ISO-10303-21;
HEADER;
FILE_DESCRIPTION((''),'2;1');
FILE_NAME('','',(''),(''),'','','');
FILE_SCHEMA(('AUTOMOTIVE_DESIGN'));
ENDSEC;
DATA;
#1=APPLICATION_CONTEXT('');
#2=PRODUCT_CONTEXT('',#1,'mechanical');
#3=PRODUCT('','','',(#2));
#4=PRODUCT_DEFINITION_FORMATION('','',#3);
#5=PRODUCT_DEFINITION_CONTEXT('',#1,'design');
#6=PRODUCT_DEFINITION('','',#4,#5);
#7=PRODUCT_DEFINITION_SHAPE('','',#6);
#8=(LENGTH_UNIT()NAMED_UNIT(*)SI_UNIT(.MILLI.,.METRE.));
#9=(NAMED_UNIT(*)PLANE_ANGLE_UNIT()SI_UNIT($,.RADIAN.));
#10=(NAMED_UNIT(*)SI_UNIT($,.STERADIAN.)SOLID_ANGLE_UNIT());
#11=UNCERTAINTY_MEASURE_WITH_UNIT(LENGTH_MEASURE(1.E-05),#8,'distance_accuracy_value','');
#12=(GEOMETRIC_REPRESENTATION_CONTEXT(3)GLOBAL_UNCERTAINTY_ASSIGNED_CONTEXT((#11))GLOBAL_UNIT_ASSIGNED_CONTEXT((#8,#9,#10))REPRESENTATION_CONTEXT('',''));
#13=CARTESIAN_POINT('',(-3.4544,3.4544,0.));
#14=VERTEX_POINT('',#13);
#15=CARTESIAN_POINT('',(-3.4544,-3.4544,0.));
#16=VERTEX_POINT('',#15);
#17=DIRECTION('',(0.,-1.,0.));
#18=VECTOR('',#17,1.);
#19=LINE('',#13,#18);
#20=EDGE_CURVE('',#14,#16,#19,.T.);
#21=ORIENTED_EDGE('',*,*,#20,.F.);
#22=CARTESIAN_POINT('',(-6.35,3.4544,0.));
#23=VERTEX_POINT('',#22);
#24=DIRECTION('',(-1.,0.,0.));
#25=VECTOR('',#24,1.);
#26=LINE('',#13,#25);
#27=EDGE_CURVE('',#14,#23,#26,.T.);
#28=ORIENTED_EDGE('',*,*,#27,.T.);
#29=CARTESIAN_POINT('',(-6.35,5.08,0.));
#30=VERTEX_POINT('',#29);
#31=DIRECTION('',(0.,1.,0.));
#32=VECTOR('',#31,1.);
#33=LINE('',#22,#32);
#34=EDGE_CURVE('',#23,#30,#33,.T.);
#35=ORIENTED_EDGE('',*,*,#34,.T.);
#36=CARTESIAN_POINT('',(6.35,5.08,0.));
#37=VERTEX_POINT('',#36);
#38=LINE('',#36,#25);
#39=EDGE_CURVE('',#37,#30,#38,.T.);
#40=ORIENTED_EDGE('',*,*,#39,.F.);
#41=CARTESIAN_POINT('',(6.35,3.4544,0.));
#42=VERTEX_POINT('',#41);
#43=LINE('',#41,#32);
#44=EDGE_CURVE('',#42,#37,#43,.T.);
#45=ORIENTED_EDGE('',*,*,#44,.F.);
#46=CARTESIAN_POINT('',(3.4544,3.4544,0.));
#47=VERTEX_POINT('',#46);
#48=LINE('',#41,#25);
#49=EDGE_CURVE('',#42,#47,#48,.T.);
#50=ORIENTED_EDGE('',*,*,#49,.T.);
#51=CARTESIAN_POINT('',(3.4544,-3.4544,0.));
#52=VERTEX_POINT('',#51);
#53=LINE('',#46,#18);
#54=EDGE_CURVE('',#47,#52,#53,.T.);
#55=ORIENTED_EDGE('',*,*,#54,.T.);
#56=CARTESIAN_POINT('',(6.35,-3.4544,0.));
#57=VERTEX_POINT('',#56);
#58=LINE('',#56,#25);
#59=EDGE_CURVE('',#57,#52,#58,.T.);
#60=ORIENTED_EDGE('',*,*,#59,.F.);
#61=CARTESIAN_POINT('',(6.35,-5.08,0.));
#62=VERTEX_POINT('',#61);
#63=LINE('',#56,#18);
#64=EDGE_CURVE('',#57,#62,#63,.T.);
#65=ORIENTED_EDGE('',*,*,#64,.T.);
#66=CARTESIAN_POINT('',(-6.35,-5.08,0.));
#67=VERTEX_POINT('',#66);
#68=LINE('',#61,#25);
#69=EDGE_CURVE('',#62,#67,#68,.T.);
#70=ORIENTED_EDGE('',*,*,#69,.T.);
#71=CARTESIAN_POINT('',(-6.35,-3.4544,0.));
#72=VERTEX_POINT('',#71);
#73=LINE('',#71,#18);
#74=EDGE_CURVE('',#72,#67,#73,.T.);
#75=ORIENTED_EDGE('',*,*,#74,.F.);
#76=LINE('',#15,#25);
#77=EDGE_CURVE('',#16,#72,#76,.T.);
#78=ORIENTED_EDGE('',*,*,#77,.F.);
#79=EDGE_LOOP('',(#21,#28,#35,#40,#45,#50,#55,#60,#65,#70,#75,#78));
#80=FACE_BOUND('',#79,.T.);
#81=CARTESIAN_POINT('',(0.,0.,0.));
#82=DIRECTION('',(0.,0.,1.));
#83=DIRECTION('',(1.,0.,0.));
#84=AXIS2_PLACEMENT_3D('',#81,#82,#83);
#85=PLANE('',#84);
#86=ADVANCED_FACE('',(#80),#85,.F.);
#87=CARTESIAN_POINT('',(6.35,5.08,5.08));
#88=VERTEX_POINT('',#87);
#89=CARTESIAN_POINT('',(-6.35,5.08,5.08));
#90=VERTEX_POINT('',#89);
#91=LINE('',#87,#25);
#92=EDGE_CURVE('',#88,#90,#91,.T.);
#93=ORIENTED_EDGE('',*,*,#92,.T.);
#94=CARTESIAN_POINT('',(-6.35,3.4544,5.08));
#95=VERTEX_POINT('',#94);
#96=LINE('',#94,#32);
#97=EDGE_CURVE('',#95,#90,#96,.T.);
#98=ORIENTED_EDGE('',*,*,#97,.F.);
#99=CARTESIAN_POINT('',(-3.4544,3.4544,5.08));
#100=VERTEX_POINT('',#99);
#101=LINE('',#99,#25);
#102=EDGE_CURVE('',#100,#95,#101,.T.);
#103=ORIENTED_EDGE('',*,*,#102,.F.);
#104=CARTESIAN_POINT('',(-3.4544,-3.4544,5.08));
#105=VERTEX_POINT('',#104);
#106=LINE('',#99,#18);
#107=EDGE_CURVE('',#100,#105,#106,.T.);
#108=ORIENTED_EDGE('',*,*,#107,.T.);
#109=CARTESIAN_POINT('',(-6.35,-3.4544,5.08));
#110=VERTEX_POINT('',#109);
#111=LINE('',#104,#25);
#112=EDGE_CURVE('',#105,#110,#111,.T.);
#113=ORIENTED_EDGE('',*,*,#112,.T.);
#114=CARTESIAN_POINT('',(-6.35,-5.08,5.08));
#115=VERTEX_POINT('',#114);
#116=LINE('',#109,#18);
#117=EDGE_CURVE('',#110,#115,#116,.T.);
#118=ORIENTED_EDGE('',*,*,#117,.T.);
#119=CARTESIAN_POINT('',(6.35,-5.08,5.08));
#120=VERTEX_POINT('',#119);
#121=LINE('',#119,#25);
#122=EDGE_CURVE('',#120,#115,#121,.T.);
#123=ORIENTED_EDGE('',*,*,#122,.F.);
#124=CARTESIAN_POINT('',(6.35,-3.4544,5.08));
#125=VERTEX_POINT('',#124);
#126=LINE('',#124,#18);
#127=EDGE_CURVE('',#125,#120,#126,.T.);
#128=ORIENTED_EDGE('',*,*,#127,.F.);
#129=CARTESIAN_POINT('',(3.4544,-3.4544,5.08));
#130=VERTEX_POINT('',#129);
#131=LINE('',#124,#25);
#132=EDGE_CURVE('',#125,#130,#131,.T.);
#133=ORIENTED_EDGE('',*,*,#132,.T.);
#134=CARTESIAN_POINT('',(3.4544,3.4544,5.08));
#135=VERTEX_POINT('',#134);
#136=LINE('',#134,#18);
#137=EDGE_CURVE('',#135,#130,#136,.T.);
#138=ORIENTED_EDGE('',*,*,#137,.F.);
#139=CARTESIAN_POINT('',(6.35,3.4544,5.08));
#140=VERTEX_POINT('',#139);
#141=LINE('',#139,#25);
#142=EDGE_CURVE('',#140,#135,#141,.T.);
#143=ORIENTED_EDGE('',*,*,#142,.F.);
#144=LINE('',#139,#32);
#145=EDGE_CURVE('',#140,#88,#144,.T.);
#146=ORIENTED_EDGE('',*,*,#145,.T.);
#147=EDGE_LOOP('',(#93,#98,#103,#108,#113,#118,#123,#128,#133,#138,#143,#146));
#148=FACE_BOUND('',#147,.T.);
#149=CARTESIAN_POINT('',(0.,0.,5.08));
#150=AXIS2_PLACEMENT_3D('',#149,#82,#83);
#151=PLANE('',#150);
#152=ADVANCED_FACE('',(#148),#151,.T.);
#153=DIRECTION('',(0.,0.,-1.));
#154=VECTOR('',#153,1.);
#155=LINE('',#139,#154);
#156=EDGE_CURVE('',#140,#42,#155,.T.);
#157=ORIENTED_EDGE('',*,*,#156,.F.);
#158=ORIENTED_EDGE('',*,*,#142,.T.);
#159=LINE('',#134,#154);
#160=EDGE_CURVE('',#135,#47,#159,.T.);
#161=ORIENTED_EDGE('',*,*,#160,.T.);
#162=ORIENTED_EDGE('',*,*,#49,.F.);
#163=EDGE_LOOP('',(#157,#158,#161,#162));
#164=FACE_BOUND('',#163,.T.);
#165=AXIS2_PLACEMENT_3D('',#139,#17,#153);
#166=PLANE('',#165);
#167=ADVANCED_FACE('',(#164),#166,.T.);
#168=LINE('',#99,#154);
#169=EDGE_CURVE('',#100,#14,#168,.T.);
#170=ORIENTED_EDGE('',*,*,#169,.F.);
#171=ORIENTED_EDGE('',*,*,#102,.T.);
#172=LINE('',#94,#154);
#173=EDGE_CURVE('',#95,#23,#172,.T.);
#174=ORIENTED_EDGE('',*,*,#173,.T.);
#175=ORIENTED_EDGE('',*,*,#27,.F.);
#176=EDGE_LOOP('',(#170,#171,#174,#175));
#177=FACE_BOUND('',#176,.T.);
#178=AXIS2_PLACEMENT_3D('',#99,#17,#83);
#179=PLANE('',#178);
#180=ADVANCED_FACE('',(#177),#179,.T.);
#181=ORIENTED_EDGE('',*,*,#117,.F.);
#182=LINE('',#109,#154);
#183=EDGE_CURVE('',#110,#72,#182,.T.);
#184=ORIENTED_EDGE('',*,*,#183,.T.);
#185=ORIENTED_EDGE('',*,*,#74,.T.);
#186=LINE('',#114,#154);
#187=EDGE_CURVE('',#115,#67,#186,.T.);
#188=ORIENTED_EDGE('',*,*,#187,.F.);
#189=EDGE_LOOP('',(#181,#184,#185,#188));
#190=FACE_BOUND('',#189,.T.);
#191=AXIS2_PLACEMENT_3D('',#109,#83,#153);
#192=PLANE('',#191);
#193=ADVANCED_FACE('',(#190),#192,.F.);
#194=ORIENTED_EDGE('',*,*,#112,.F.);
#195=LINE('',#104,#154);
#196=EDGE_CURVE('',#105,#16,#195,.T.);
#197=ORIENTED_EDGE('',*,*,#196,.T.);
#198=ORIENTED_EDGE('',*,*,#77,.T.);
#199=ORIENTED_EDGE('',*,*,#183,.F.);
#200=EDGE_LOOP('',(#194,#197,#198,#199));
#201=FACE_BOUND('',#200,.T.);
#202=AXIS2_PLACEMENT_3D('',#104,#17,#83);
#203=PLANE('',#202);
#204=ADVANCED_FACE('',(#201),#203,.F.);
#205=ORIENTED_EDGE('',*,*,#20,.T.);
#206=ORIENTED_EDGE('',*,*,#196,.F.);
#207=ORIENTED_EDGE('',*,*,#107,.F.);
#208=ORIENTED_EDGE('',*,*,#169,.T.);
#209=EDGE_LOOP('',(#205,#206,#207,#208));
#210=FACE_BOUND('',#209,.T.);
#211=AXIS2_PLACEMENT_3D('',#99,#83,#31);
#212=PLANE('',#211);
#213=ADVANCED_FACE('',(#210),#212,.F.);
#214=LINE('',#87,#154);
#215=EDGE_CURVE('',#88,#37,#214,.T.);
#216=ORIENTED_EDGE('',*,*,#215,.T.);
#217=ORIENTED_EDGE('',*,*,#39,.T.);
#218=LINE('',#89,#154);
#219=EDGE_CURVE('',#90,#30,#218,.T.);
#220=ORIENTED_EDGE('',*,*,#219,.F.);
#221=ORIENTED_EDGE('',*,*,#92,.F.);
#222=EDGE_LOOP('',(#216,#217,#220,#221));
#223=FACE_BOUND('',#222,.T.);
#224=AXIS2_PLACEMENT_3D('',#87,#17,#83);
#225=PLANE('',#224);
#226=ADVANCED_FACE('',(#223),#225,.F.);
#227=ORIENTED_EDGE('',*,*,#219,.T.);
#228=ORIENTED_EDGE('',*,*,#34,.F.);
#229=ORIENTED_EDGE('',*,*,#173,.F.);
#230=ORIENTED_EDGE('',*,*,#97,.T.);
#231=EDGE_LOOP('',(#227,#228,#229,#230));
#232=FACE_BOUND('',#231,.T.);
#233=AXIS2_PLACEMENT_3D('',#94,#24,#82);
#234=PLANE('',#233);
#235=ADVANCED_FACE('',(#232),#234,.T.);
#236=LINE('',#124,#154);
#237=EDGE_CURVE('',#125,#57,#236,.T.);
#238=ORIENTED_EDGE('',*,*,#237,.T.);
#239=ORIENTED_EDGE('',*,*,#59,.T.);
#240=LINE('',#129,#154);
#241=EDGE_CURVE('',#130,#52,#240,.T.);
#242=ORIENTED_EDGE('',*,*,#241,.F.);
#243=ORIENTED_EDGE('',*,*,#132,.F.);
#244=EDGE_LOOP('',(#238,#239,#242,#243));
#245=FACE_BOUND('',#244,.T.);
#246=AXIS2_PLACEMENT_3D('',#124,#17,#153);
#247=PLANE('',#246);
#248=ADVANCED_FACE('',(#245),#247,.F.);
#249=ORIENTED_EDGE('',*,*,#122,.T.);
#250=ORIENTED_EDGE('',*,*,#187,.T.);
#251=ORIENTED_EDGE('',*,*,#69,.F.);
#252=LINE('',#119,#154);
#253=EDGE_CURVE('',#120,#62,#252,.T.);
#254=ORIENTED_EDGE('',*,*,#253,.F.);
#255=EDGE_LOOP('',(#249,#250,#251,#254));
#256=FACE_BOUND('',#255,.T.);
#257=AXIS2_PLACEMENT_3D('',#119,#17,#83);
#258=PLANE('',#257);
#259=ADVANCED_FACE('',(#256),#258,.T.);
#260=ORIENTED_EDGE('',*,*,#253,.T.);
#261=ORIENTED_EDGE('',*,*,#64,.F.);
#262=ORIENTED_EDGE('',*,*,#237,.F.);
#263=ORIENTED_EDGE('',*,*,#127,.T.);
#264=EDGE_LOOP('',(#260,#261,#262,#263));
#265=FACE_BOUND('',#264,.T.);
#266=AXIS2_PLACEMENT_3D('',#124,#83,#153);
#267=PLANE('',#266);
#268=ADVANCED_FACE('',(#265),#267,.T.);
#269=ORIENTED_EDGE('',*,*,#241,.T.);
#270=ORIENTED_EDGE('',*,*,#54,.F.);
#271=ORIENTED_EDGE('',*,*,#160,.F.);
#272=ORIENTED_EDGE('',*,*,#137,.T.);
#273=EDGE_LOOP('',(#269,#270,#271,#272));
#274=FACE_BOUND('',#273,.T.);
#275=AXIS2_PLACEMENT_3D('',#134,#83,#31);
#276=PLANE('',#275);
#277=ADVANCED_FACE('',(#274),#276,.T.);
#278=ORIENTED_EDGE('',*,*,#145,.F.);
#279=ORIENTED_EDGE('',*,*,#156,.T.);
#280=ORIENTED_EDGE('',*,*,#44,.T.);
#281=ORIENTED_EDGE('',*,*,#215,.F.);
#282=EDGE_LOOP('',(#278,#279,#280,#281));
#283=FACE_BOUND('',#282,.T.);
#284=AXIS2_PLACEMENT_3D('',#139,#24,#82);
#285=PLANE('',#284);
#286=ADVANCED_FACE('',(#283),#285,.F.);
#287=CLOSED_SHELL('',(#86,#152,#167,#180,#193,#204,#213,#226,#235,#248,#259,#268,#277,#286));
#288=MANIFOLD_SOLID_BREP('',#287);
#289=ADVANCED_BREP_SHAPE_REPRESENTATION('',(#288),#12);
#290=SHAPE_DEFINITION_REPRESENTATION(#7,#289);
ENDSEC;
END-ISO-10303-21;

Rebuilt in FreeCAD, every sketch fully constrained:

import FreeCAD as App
import Part
import Sketcher

V = App.Vector
Q = App.Units.Quantity

doc = App.newDocument("Part")
body = doc.addObject("PartDesign::Body", "Body")

sketch1 = body.newObject("Sketcher::SketchObject", "Sketch")
sketch1.AttachmentSupport = (doc.getObject("XY_Plane"), [""])
sketch1.MapMode = "FlatFace"
sketch1.addGeometry(Part.LineSegment(V(-3.5, 3.5, 0), V(-3.5, -3.5, 0)), False)
sketch1.addGeometry(Part.LineSegment(V(-3.5, -3.5, 0), V(-6.3, -3.5, 0)), False)
sketch1.addGeometry(Part.LineSegment(V(-6.3, -3.5, 0), V(-6.3, -5.1, 0)), False)
sketch1.addGeometry(Part.LineSegment(V(-6.3, -5.1, 0), V(6.3, -5.1, 0)), False)
sketch1.addGeometry(Part.LineSegment(V(6.3, -5.1, 0), V(6.3, -3.5, 0)), False)
sketch1.addGeometry(Part.LineSegment(V(6.3, -3.5, 0), V(3.5, -3.5, 0)), False)
sketch1.addGeometry(Part.LineSegment(V(3.5, -3.5, 0), V(3.5, 3.5, 0)), False)
sketch1.addGeometry(Part.LineSegment(V(3.5, 3.5, 0), V(6.3, 3.5, 0)), False)
sketch1.addGeometry(Part.LineSegment(V(6.3, 3.5, 0), V(6.3, 5.1, 0)), False)
sketch1.addGeometry(Part.LineSegment(V(6.3, 5.1, 0), V(-6.3, 5.1, 0)), False)
sketch1.addGeometry(Part.LineSegment(V(-6.3, 5.1, 0), V(-6.3, 3.5, 0)), False)
sketch1.addGeometry(Part.LineSegment(V(-6.3, 3.5, 0), V(-3.5, 3.5, 0)), False)
sketch1.addConstraint(Sketcher.Constraint("Coincident", 0, 2, 1, 1))
sketch1.addConstraint(Sketcher.Constraint("Coincident", 1, 2, 2, 1))
sketch1.addConstraint(Sketcher.Constraint("Coincident", 2, 2, 3, 1))
sketch1.addConstraint(Sketcher.Constraint("Coincident", 3, 2, 4, 1))
sketch1.addConstraint(Sketcher.Constraint("Coincident", 4, 2, 5, 1))
sketch1.addConstraint(Sketcher.Constraint("Coincident", 5, 2, 6, 1))
sketch1.addConstraint(Sketcher.Constraint("Coincident", 6, 2, 7, 1))
sketch1.addConstraint(Sketcher.Constraint("Coincident", 7, 2, 8, 1))
sketch1.addConstraint(Sketcher.Constraint("Coincident", 8, 2, 9, 1))
sketch1.addConstraint(Sketcher.Constraint("Coincident", 9, 2, 10, 1))
sketch1.addConstraint(Sketcher.Constraint("Coincident", 10, 2, 11, 1))
sketch1.addConstraint(Sketcher.Constraint("Coincident", 11, 2, 0, 1))
sketch1.addConstraint(Sketcher.Constraint("Vertical", 0))
sketch1.addConstraint(Sketcher.Constraint("Horizontal", 1))
sketch1.addConstraint(Sketcher.Constraint("Vertical", 2))
sketch1.addConstraint(Sketcher.Constraint("Horizontal", 3))
sketch1.addConstraint(Sketcher.Constraint("Vertical", 4))
sketch1.addConstraint(Sketcher.Constraint("Horizontal", 5))
sketch1.addConstraint(Sketcher.Constraint("Vertical", 6))
sketch1.addConstraint(Sketcher.Constraint("Horizontal", 7))
sketch1.addConstraint(Sketcher.Constraint("Vertical", 8))
sketch1.addConstraint(Sketcher.Constraint("Horizontal", 9))
sketch1.addConstraint(Sketcher.Constraint("Vertical", 10))
sketch1.addConstraint(Sketcher.Constraint("Horizontal", 11))
sketch1.addConstraint(Sketcher.Constraint("Symmetric", 0, 2, 6, 2, -1, 1))
sketch1.addConstraint(Sketcher.Constraint("Symmetric", 2, 2, 8, 2, -1, 1))
sketch1.addConstraint(Sketcher.Constraint("Symmetric", 4, 2, 10, 2, -1, 1))
sketch1.addConstraint(Sketcher.Constraint("Symmetric", 1, 2, 4, 2, -2))
sketch1.addConstraint(Sketcher.Constraint("DistanceX", 3, 1, 3, 2, Q("0.5 in")))
sketch1.addConstraint(Sketcher.Constraint("DistanceY", 2, 2, -1, 1, Q("0.2 in")))
sketch1.addConstraint(Sketcher.Constraint("DistanceX", 1, 2, 1, 1, Q("0.114 in")))
sketch1.addConstraint(Sketcher.Constraint("DistanceY", 0, 2, 0, 1, Q("0.272 in")))
pad1 = body.newObject("PartDesign::Pad", "Pad")
pad1.Profile = sketch1
pad1.Length = Q("0.2 in")

doc.recompute()
